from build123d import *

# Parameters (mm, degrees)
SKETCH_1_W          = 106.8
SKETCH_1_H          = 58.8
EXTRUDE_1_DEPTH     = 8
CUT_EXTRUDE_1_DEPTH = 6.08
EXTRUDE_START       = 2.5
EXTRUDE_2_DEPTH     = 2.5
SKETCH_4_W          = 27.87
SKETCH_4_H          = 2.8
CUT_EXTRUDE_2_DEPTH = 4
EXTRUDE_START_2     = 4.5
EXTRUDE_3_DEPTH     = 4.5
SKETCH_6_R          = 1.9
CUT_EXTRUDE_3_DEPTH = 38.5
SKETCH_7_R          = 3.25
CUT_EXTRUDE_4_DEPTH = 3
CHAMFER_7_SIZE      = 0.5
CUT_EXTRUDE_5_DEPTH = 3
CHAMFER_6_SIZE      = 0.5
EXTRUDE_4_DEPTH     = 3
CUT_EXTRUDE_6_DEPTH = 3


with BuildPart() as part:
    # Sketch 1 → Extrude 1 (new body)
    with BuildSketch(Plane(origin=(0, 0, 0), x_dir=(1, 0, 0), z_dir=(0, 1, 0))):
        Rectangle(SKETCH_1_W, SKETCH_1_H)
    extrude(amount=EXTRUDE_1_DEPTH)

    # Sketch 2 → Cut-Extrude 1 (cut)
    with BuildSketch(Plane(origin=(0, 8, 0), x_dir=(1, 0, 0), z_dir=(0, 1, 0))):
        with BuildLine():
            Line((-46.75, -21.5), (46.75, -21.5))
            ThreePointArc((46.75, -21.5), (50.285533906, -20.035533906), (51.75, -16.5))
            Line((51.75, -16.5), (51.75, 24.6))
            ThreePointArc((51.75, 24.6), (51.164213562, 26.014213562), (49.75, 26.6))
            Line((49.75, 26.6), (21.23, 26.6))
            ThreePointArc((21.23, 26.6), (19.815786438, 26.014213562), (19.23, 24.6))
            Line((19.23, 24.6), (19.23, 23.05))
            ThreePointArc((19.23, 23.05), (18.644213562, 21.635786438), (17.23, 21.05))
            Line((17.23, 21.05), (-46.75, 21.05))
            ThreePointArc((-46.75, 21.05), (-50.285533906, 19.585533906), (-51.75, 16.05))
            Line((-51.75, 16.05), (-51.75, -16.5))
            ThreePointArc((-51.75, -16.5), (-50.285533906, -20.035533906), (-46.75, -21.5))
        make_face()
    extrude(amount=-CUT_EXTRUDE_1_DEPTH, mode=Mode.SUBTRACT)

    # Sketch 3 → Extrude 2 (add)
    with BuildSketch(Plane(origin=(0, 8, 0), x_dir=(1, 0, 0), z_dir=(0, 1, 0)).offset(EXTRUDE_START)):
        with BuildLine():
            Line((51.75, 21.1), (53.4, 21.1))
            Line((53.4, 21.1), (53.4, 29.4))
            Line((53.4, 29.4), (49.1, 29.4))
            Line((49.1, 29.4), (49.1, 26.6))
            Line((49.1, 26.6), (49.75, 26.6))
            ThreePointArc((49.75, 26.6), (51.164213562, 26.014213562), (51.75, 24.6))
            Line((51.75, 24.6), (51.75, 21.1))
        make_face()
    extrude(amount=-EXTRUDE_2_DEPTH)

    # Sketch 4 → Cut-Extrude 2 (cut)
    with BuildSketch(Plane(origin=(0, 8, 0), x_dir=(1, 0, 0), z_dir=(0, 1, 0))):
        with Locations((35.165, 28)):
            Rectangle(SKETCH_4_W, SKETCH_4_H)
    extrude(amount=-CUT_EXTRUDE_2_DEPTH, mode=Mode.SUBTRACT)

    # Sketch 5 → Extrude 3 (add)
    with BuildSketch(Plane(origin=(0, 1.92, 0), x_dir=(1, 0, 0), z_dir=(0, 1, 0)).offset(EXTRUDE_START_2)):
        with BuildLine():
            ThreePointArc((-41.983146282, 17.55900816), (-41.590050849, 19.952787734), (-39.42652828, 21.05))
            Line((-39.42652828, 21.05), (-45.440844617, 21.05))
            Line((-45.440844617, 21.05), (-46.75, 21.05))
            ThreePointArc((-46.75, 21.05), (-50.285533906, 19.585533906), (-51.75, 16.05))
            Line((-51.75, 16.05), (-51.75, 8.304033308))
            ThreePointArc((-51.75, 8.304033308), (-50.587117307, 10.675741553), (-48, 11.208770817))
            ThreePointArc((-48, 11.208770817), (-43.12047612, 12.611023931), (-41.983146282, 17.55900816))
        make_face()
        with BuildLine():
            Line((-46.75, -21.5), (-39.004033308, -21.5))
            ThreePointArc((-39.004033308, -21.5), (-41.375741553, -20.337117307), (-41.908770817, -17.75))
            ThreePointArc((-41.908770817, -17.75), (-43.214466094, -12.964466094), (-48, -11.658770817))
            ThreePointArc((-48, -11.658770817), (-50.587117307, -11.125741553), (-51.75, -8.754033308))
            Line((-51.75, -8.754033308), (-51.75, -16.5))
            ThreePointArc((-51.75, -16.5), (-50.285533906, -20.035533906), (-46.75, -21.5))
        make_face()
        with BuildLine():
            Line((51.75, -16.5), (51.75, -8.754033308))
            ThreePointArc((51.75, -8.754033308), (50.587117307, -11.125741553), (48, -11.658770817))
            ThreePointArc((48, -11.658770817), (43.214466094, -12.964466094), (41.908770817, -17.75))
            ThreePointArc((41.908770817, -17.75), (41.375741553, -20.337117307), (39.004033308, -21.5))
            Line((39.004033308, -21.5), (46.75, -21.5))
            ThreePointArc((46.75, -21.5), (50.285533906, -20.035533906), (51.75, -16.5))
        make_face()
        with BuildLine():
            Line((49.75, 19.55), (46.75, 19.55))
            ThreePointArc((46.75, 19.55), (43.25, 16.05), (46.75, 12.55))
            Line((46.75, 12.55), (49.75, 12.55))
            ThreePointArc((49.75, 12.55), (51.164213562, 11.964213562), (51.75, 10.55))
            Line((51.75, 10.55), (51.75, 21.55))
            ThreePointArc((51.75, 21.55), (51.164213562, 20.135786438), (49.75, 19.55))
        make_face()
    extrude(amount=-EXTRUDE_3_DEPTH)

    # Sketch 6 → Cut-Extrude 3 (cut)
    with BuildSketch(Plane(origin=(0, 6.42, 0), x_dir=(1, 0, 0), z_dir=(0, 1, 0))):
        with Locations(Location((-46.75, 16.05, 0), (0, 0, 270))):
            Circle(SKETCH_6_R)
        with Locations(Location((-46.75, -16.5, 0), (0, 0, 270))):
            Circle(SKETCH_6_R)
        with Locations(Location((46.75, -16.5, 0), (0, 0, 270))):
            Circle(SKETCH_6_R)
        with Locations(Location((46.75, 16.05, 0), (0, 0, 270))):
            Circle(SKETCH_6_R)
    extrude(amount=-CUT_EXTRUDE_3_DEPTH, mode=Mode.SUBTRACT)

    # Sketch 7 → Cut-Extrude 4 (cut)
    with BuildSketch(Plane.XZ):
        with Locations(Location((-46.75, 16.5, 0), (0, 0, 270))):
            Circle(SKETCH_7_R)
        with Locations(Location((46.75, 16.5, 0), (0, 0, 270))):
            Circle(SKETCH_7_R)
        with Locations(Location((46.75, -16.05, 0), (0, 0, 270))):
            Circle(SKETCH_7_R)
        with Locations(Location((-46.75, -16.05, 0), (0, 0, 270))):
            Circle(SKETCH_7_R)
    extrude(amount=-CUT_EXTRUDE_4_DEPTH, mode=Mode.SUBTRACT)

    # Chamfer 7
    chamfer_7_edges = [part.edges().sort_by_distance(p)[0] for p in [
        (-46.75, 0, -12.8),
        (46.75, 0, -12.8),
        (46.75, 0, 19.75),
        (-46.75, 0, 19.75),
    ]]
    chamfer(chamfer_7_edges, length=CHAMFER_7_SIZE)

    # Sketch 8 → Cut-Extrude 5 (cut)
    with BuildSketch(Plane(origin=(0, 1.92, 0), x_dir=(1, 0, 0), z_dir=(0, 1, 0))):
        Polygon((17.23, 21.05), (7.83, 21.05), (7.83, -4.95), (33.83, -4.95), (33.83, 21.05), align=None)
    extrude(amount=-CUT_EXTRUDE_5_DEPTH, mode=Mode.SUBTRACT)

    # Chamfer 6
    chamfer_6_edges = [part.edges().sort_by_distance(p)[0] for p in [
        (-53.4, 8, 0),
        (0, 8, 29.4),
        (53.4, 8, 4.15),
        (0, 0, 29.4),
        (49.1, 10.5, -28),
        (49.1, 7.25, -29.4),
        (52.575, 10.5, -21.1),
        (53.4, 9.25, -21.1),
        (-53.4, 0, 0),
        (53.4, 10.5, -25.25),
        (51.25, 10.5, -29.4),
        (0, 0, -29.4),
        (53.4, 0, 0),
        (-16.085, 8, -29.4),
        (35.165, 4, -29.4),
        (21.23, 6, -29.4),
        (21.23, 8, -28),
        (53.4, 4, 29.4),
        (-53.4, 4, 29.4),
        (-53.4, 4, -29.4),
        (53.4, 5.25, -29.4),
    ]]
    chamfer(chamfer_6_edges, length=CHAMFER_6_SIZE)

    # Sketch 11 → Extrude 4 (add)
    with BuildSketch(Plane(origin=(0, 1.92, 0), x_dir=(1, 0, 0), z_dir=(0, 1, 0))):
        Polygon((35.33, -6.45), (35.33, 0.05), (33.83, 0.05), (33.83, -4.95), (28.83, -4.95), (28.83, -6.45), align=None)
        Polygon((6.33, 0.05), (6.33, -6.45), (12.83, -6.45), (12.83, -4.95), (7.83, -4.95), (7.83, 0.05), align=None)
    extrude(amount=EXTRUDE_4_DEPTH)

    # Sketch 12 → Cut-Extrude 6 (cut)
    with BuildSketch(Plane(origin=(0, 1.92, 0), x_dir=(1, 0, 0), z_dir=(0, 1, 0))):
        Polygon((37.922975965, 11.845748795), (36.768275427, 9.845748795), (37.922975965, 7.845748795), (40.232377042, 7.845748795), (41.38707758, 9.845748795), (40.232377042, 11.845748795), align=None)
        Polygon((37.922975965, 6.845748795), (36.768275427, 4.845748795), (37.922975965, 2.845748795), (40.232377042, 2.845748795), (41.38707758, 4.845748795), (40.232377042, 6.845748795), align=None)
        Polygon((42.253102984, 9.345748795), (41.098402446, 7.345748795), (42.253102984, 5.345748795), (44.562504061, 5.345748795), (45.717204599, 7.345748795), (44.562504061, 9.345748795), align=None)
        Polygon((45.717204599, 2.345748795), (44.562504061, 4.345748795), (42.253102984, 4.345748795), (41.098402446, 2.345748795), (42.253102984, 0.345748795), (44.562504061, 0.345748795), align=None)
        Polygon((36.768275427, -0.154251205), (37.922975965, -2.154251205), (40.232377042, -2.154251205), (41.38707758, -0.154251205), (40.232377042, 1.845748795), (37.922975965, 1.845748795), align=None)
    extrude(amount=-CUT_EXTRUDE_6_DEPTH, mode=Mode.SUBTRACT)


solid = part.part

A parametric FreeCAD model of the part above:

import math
import FreeCAD as App
import Part
import Sketcher
from FreeCAD import Vector
Q = App.Units.Quantity


def edges_at(feature, points):
    """Names of the edges that pass closest to the given points."""
    edges = feature.Shape.Edges
    near = lambda p: min(range(len(edges)), key=lambda i: edges[i].distToShape(Part.Vertex(*p))[0])
    return sorted({f"Edge{near(p) + 1}" for p in points})

doc = App.newDocument("Part")
body = doc.addObject("PartDesign::Body", "Body")

sketch1 = body.newObject("Sketcher::SketchObject", "Sketch")
sketch1.AttachmentSupport = (doc.getObject("XZ_Plane"), [""])
sketch1.MapMode = "FlatFace"
sketch1.addGeometry([
    Part.LineSegment(Vector(-53, -29, 0), Vector(-53, 29, 0)),
    Part.LineSegment(Vector(-53, 29, 0), Vector(53, 29, 0)),
    Part.LineSegment(Vector(53, 29, 0), Vector(53, -29, 0)),
    Part.LineSegment(Vector(53, -29, 0), Vector(-53, -29, 0)),
], False)
sketch1.addConstraint([
    Sketcher.Constraint("Coincident", 0, 2, 1, 1),
    Sketcher.Constraint("Coincident", 1, 2, 2, 1),
    Sketcher.Constraint("Coincident", 2, 2, 3, 1),
    Sketcher.Constraint("Coincident", 3, 2, 0, 1),
    Sketcher.Constraint("Vertical", 0),
    Sketcher.Constraint("Horizontal", 1),
    Sketcher.Constraint("Vertical", 2),
    Sketcher.Constraint("Horizontal", 3),
    Sketcher.Constraint("Symmetric", 0, 2, 2, 2, -1, 1),
    Sketcher.Constraint("DistanceX", 1, 1, 1, 2, Q("106.8 mm")),
    Sketcher.Constraint("DistanceY", 0, 1, 0, 2, Q("58.8 mm")),
])
pad1 = body.newObject("PartDesign::Pad", "Pad")
pad1.Profile = sketch1
pad1.Length = 8
pad1.Reversed = True

sketch2 = body.newObject("Sketcher::SketchObject", "Sketch001")
sketch2.AttachmentSupport = (doc.getObject("XZ_Plane"), [""])
sketch2.MapMode = "FlatFace"
sketch2.AttachmentOffset = App.Placement(Vector(0, 0, -8), App.Rotation())
sketch2.addGeometry([
    Part.LineSegment(Vector(-46.8, 21.5, 0), Vector(46.8, 21.5, 0)),
    Part.ArcOfCircle(Part.Circle(Vector(46.8, 16.5, 0), Vector(0, 0, 1), 5), math.radians(0), math.radians(90)),
    Part.LineSegment(Vector(51.8, 16.5, 0), Vector(51.8, -24.6, 0)),
    Part.ArcOfCircle(Part.Circle(Vector(49.7, -24.6, 0), Vector(0, 0, 1), 2), math.radians(-90), math.radians(0)),
    Part.LineSegment(Vector(49.8, -26.6, 0), Vector(21.2, -26.6, 0)),
    Part.ArcOfCircle(Part.Circle(Vector(21.2, -24.6, 0), Vector(0, 0, 1), 2), math.radians(-180), math.radians(-90)),
    Part.LineSegment(Vector(19.2, -24.6, 0), Vector(19.2, -23.1, 0)),
    Part.ArcOfCircle(Part.Circle(Vector(17.2, -23.1, 0), Vector(0, 0, 1), 2), math.radians(0), math.radians(90)),
    Part.LineSegment(Vector(17.2, -21.1, 0), Vector(-46.8, -21.1, 0)),
    Part.ArcOfCircle(Part.Circle(Vector(-46.8, -16.1, 0), Vector(0, 0, 1), 5), math.radians(180), math.radians(270)),
    Part.LineSegment(Vector(-51.8, -16.1, 0), Vector(-51.8, 16.5, 0)),
    Part.ArcOfCircle(Part.Circle(Vector(-46.8, 16.5, 0), Vector(0, 0, 1), 5), math.radians(90), math.radians(180)),
], False)
sketch2.addConstraint([
    Sketcher.Constraint("Tangent", 0, 2, 1, 2),
    Sketcher.Constraint("Tangent", 1, 1, 2, 1),
    Sketcher.Constraint("Tangent", 2, 2, 3, 2),
    Sketcher.Constraint("Tangent", 3, 1, 4, 1),
    Sketcher.Constraint("Tangent", 4, 2, 5, 2),
    Sketcher.Constraint("Tangent", 5, 1, 6, 1),
    Sketcher.Constraint("Tangent", 6, 2, 7, 1),
    Sketcher.Constraint("Tangent", 7, 2, 8, 1),
    Sketcher.Constraint("Tangent", 8, 2, 9, 2),
    Sketcher.Constraint("Tangent", 9, 1, 10, 1),
    Sketcher.Constraint("Tangent", 10, 2, 11, 2),
    Sketcher.Constraint("Tangent", 11, 1, 0, 1),
    Sketcher.Constraint("Horizontal", 0),
    Sketcher.Constraint("Vertical", 2),
    Sketcher.Constraint("Horizontal", 4),
    Sketcher.Constraint("Vertical", 6),
    Sketcher.Constraint("Horizontal", 8),
    Sketcher.Constraint("Vertical", 10),
    Sketcher.Constraint("Equal", 3, 5),
    Sketcher.Constraint("Equal", 5, 7),
    Sketcher.Constraint("Equal", 1, 9),
    Sketcher.Constraint("Equal", 9, 11),
    Sketcher.Constraint("Radius", 1, Q("5 mm")),
    Sketcher.Constraint("Radius", 3, Q("2 mm")),
    Sketcher.Constraint("DistanceX", 0, 1, 0, 2, Q("93.5 mm")),
    Sketcher.Constraint("DistanceY", 2, 2, 2, 1, Q("41.1 mm")),
    Sketcher.Constraint("DistanceX", 4, 2, 4, 1, Q("28.52 mm")),
    Sketcher.Constraint("DistanceY", 6, 1, 6, 2, Q("1.55 mm")),
    Sketcher.Constraint("DistanceY", -1, 1, 1, 3, Q("16.5 mm")),
    Sketcher.Constraint("DistanceX", -1, 1, 1, 3, Q("46.75 mm")),
])
pocket1 = body.newObject("PartDesign::Pocket", "Pocket")
pocket1.Profile = sketch2
pocket1.Length = 6.08
pocket1.Reversed = True

sketch3 = body.newObject("Sketcher::SketchObject", "Sketch002")
sketch3.AttachmentSupport = (doc.getObject("XZ_Plane"), [""])
sketch3.MapMode = "FlatFace"
sketch3.AttachmentOffset = App.Placement(Vector(0, 0, -10.5), App.Rotation())
sketch3.addGeometry([
    Part.LineSegment(Vector(51.8, -21.1, 0), Vector(53.4, -21.1, 0)),
    Part.LineSegment(Vector(53.4, -21.1, 0), Vector(53.4, -29.4, 0)),
    Part.LineSegment(Vector(53.4, -29.4, 0), Vector(49.1, -29.4, 0)),
    Part.LineSegment(Vector(49.1, -29.4, 0), Vector(49.1, -26.6, 0)),
    Part.LineSegment(Vector(49.1, -26.6, 0), Vector(49.8, -26.6, 0)),
    Part.ArcOfCircle(Part.Circle(Vector(49.7, -24.6, 0), Vector(0, 0, 1), 2), math.radians(-90), math.radians(0)),
    Part.LineSegment(Vector(51.8, -24.6, 0), Vector(51.8, -21.1, 0)),
], False)
sketch3.addConstraint([
    Sketcher.Constraint("Coincident", 0, 2, 1, 1),
    Sketcher.Constraint("Coincident", 1, 2, 2, 1),
    Sketcher.Constraint("Coincident", 2, 2, 3, 1),
    Sketcher.Constraint("Coincident", 3, 2, 4, 1),
    Sketcher.Constraint("Tangent", 4, 2, 5, 1),
    Sketcher.Constraint("Tangent", 5, 2, 6, 1),
    Sketcher.Constraint("Coincident", 6, 2, 0, 1),
    Sketcher.Constraint("Horizontal", 0),
    Sketcher.Constraint("Vertical", 1),
    Sketcher.Constraint("Horizontal", 2),
    Sketcher.Constraint("Vertical", 3),
    Sketcher.Constraint("Horizontal", 4),
    Sketcher.Constraint("Vertical", 6),
    Sketcher.Constraint("Radius", 5, Q("2 mm")),
    Sketcher.Constraint("DistanceX", 2, 2, 2, 1, Q("4.3 mm")),
    Sketcher.Constraint("DistanceY", 1, 2, 1, 1, Q("8.3 mm")),
    Sketcher.Constraint("DistanceY", 3, 1, 3, 2, Q("2.8 mm")),
    Sketcher.Constraint("DistanceX", 0, 1, 0, 2, Q("1.65 mm")),
    Sketcher.Constraint("DistanceY", 5, 3, -1, 1, Q("24.6 mm")),
    Sketcher.Constraint("DistanceX", -1, 1, 0, 2, Q("53.4 mm")),
])
pad2 = body.newObject("PartDesign::Pad", "Pad001")
pad2.Profile = sketch3
pad2.Length = 2.5

sketch4 = body.newObject("Sketcher::SketchObject", "Sketch003")
sketch4.AttachmentSupport = (doc.getObject("XZ_Plane"), [""])
sketch4.MapMode = "FlatFace"
sketch4.AttachmentOffset = App.Placement(Vector(0, 0, -8), App.Rotation())
sketch4.addGeometry([
    Part.LineSegment(Vector(21.2, -29.4, 0), Vector(21.2, -26.6, 0)),
    Part.LineSegment(Vector(21.2, -26.6, 0), Vector(49.1, -26.6, 0)),
    Part.LineSegment(Vector(49.1, -26.6, 0), Vector(49.1, -29.4, 0)),
    Part.LineSegment(Vector(49.1, -29.4, 0), Vector(21.2, -29.4, 0)),
], False)
sketch4.addConstraint([
    Sketcher.Constraint("Coincident", 0, 2, 1, 1),
    Sketcher.Constraint("Coincident", 1, 2, 2, 1),
    Sketcher.Constraint("Coincident", 2, 2, 3, 1),
    Sketcher.Constraint("Coincident", 3, 2, 0, 1),
    Sketcher.Constraint("Vertical", 0),
    Sketcher.Constraint("Horizontal", 1),
    Sketcher.Constraint("Vertical", 2),
    Sketcher.Constraint("Horizontal", 3),
    Sketcher.Constraint("DistanceY", 0, 1, 0, 2, Q("2.8 mm")),
    Sketcher.Constraint("DistanceX", 1, 1, 1, 2, Q("27.87 mm")),
    Sketcher.Constraint("DistanceY", 0, 2, -1, 1, Q("26.6 mm")),
    Sketcher.Constraint("DistanceX", -1, 1, 1, 2, Q("49.1 mm")),
])
pocket2 = body.newObject("PartDesign::Pocket", "Pocket001")
pocket2.Profile = sketch4
pocket2.Length = 4
pocket2.Reversed = True

sketch5 = body.newObject("Sketcher::SketchObject", "Sketch004")
sketch5.AttachmentSupport = (doc.getObject("XZ_Plane"), [""])
sketch5.MapMode = "FlatFace"
sketch5.AttachmentOffset = App.Placement(Vector(0, 0, -6.42), App.Rotation())
sketch5.addGeometry([
    Part.ArcOfCircle(Part.Circle(Vector(-39.4, -18.4, 0), Vector(0, 0, 1), 2.7), math.radians(162), math.radians(270)),
    Part.LineSegment(Vector(-39.4, -21.1, 0), Vector(-46.8, -21.1, 0)),
    Part.ArcOfCircle(Part.Circle(Vector(-46.8, -16.1, 0), Vector(0, 0, 1), 5), math.radians(180), math.radians(270)),
    Part.LineSegment(Vector(-51.8, -16.1, 0), Vector(-51.8, -8.3, 0)),
    Part.ArcOfCircle(Part.Circle(Vector(-48.8, -8.3, 0), Vector(0, 0, 1), 3), math.radians(180), math.radians(284)),
    Part.ArcOfCircle(Part.Circle(Vector(-46.8, -16.1, 0), Vector(0, 0, 1), 5), math.radians(-18), math.radians(104)),
    Part.LineSegment(Vector(-46.8, 21.5, 0), Vector(-39, 21.5, 0)),
    Part.ArcOfCircle(Part.Circle(Vector(-39, 18.5, 0), Vector(0, 0, 1), 3), math.radians(90), math.radians(194)),
    Part.ArcOfCircle(Part.Circle(Vector(-46.8, 16.5, 0), Vector(0, 0, 1), 5), math.radians(-104), math.radians(14)),
    Part.ArcOfCircle(Part.Circle(Vector(-48.8, 8.8, 0), Vector(0, 0, 1), 3), math.radians(76), math.radians(180)),
    Part.LineSegment(Vector(-51.8, 8.8, 0), Vector(-51.8, 16.5, 0)),
    Part.ArcOfCircle(Part.Circle(Vector(-46.8, 16.5, 0), Vector(0, 0, 1), 5), math.radians(90), math.radians(180)),
    Part.LineSegment(Vector(51.8, 16.5, 0), Vector(51.8, 8.8, 0)),
    Part.ArcOfCircle(Part.Circle(Vector(48.8, 8.8, 0), Vector(0, 0, 1), 3), math.radians(0), math.radians(104)),
    Part.ArcOfCircle(Part.Circle(Vector(46.8, 16.5, 0), Vector(0, 0, 1), 5), math.radians(166), math.radians(284)),
    Part.ArcOfCircle(Part.Circle(Vector(39, 18.5, 0), Vector(0, 0, 1), 3), math.radians(-14), math.radians(90)),
    Part.LineSegment(Vector(39, 21.5, 0), Vector(46.8, 21.5, 0)),
    Part.ArcOfCircle(Part.Circle(Vector(46.8, 16.5, 0), Vector(0, 0, 1), 5), math.radians(0), math.radians(90)),
    Part.LineSegment(Vector(49.8, -19.6, 0), Vector(46.8, -19.6, 0)),
    Part.ArcOfCircle(Part.Circle(Vector(46.8, -16.1, 0), Vector(0, 0, 1), 3.5), math.radians(90), math.radians(270)),
    Part.LineSegment(Vector(46.8, -12.6, 0), Vector(49.8, -12.6, 0)),
    Part.ArcOfCircle(Part.Circle(Vector(49.7, -10.5, 0), Vector(0, 0, 1), 2), math.radians(-90), math.radians(0)),
    Part.LineSegment(Vector(51.8, -10.6, 0), Vector(51.8, -21.6, 0)),
    Part.ArcOfCircle(Part.Circle(Vector(49.7, -21.6, 0), Vector(0, 0, 1), 2), math.radians(0), math.radians(90)),
], False)
sketch5.addConstraint([
    Sketcher.Constraint("Tangent", 0, 2, 1, 1),
    Sketcher.Constraint("Tangent", 1, 2, 2, 2),
    Sketcher.Constraint("Tangent", 2, 1, 3, 1),
    Sketcher.Constraint("Tangent", 3, 2, 4, 1),
    Sketcher.Constraint("Tangent", 4, 2, 5, 2),
    Sketcher.Constraint("Tangent", 5, 1, 0, 1),
    Sketcher.Constraint("Tangent", 6, 2, 7, 1),
    Sketcher.Constraint("Tangent", 7, 2, 8, 2),
    Sketcher.Constraint("Tangent", 8, 1, 9, 1),
    Sketcher.Constraint("Tangent", 9, 2, 10, 1),
    Sketcher.Constraint("Tangent", 10, 2, 11, 2),
    Sketcher.Constraint("Tangent", 11, 1, 6, 1),
    Sketcher.Constraint("Tangent", 12, 2, 13, 1),
    Sketcher.Constraint("Tangent", 13, 2, 14, 2),
    Sketcher.Constraint("Tangent", 14, 1, 15, 1),
    Sketcher.Constraint("Tangent", 15, 2, 16, 1),
    Sketcher.Constraint("Tangent", 16, 2, 17, 2),
    Sketcher.Constraint("Tangent", 17, 1, 12, 1),
    Sketcher.Constraint("Tangent", 18, 2, 19, 2),
    Sketcher.Constraint("Tangent", 19, 1, 20, 1),
    Sketcher.Constraint("Tangent", 20, 2, 21, 1),
    Sketcher.Constraint("Tangent", 21, 2, 22, 1),
    Sketcher.Constraint("Tangent", 22, 2, 23, 1),
    Sketcher.Constraint("Tangent", 23, 2, 18, 1),
    Sketcher.Constraint("Horizontal", 1),
    Sketcher.Constraint("Vertical", 3),
    Sketcher.Constraint("Horizontal", 6),
    Sketcher.Constraint("Vertical", 10),
    Sketcher.Constraint("Vertical", 12),
    Sketcher.Constraint("Horizontal", 16),
    Sketcher.Constraint("Horizontal", 18),
    Sketcher.Constraint("Horizontal", 20),
    Sketcher.Constraint("Vertical", 22),
    Sketcher.Constraint("Coincident", 5, 3, 2, 3),
    Sketcher.Constraint("Coincident", 11, 3, 8, 3),
    Sketcher.Constraint("Coincident", 17, 3, 14, 3),
    Sketcher.Constraint("Equal", 2, 5),
    Sketcher.Constraint("Equal", 4, 7),
    Sketcher.Constraint("Equal", 5, 8),
    Sketcher.Constraint("Equal", 7, 9),
    Sketcher.Constraint("Equal", 8, 11),
    Sketcher.Constraint("Equal", 9, 13),
    Sketcher.Constraint("Equal", 11, 14),
    Sketcher.Constraint("Equal", 13, 15),
    Sketcher.Constraint("Equal", 14, 17),
    Sketcher.Constraint("Equal", 21, 23),
    Sketcher.Constraint("Symmetric", 9, 3, 13, 3, -2),
    Sketcher.Constraint("Symmetric", 2, 3, 19, 3, -2),
    Sketcher.Constraint("Vertical", 5, 3, 8, 3),
    Sketcher.Constraint("Vertical", 17, 1, 21, 2),
    Sketcher.Constraint("Radius", 2, Q("5 mm")),
    Sketcher.Constraint("Radius", 4, Q("3 mm")),
    Sketcher.Constraint("Radius", 21, Q("2 mm")),
    Sketcher.Constraint("Radius", 19, Q("3.5 mm")),
    Sketcher.Constraint("DistanceX", 4, 2, -1, 1, Q("48 mm")),
    Sketcher.Constraint("DistanceY", -1, 1, 7, 3, Q("18.5 mm")),
    Sketcher.Constraint("DistanceY", 2, 3, -1, 1, Q("16.05 mm")),
    Sketcher.Constraint("Radius", 0, Q("2.681662 mm")),
])
pad3 = body.newObject("PartDesign::Pad", "Pad002")
pad3.Profile = sketch5
pad3.Length = 4.5

sketch6 = body.newObject("Sketcher::SketchObject", "Sketch005")
sketch6.AttachmentSupport = (doc.getObject("XZ_Plane"), [""])
sketch6.MapMode = "FlatFace"
sketch6.AttachmentOffset = App.Placement(Vector(0, 0, -6.42), App.Rotation())
sketch6.addGeometry([
    Part.Circle(Vector(-46.8, -16.1, 0), Vector(0, 0, 1), 1.9),
    Part.Circle(Vector(-46.8, 16.5, 0), Vector(0, 0, 1), 1.9),
    Part.Circle(Vector(46.8, 16.5, 0), Vector(0, 0, 1), 1.9),
    Part.Circle(Vector(46.8, -16.1, 0), Vector(0, 0, 1), 1.9),
], False)
sketch6.addConstraint([
    Sketcher.Constraint("Equal", 0, 1),
    Sketcher.Constraint("Equal", 1, 2),
    Sketcher.Constraint("Equal", 2, 3),
    Sketcher.Constraint("Symmetric", 1, 3, 2, 3, -2),
    Sketcher.Constraint("Symmetric", 0, 3, 3, 3, -2),
    Sketcher.Constraint("Vertical", 0, 3, 1, 3),
    Sketcher.Constraint("Diameter", 0, Q("3.8 mm")),
    Sketcher.Constraint("DistanceY", -1, 1, 1, 3, Q("16.5 mm")),
    Sketcher.Constraint("DistanceX", 1, 3, 2, 3, Q("93.5 mm")),
    Sketcher.Constraint("DistanceY", 0, 3, -1, 1, Q("16.05 mm")),
])
pocket3 = body.newObject("PartDesign::Pocket", "Pocket002")
pocket3.Profile = sketch6
pocket3.Length = 38.5
pocket3.Reversed = True

sketch7 = body.newObject("Sketcher::SketchObject", "Sketch006")
sketch7.AttachmentSupport = (doc.getObject("XZ_Plane"), [""])
sketch7.MapMode = "FlatFace"
sketch7.addGeometry([
    Part.Circle(Vector(-46.8, 16.5, 0), Vector(0, 0, 1), 3.2),
    Part.Circle(Vector(46.8, 16.5, 0), Vector(0, 0, 1), 3.2),
    Part.Circle(Vector(46.8, -16.1, 0), Vector(0, 0, 1), 3.2),
    Part.Circle(Vector(-46.8, -16.1, 0), Vector(0, 0, 1), 3.2),
], False)
sketch7.addConstraint([
    Sketcher.Constraint("Equal", 0, 1),
    Sketcher.Constraint("Equal", 1, 2),
    Sketcher.Constraint("Equal", 2, 3),
    Sketcher.Constraint("Symmetric", 0, 3, 1, 3, -2),
    Sketcher.Constraint("Symmetric", 2, 3, 3, 3, -2),
    Sketcher.Constraint("Vertical", 1, 3, 2, 3),
    Sketcher.Constraint("Diameter", 0, Q("6.5 mm")),
    Sketcher.Constraint("DistanceY", -1, 1, 0, 3, Q("16.5 mm")),
    Sketcher.Constraint("DistanceX", 0, 3, 1, 3, Q("93.5 mm")),
    Sketcher.Constraint("DistanceY", 2, 3, -1, 1, Q("16.05 mm")),
])
pocket4 = body.newObject("PartDesign::Pocket", "Pocket003")
pocket4.Profile = sketch7
pocket4.Length = 3
doc.recompute()

chamfer = body.newObject("PartDesign::Chamfer", "Chamfer")
chamfer.Base = (pocket4, edges_at(pocket4, [
    (-46.75, 0, -12.8),
    (46.75, 0, -12.8),
    (46.75, 0, 19.75),
    (-46.75, 0, 19.75),
]))
chamfer.Size = 0.5

sketch8 = body.newObject("Sketcher::SketchObject", "Sketch007")
sketch8.AttachmentSupport = (doc.getObject("XZ_Plane"), [""])
sketch8.MapMode = "FlatFace"
sketch8.AttachmentOffset = App.Placement(Vector(0, 0, -1.92), App.Rotation())
sketch8.addGeometry([
    Part.LineSegment(Vector(8, -21, 0), Vector(8, 5, 0)),
    Part.LineSegment(Vector(8, 5, 0), Vector(34, 5, 0)),
    Part.LineSegment(Vector(34, 5, 0), Vector(34, -21, 0)),
    Part.LineSegment(Vector(34, -21, 0), Vector(8, -21, 0)),
], False)
sketch8.addConstraint([
    Sketcher.Constraint("Coincident", 0, 2, 1, 1),
    Sketcher.Constraint("Coincident", 1, 2, 2, 1),
    Sketcher.Constraint("Coincident", 2, 2, 3, 1),
    Sketcher.Constraint("Coincident", 3, 2, 0, 1),
    Sketcher.Constraint("Vertical", 0),
    Sketcher.Constraint("Horizontal", 1),
    Sketcher.Constraint("Vertical", 2),
    Sketcher.Constraint("Horizontal", 3),
    Sketcher.Constraint("Equal", 3, 0),
    Sketcher.Constraint("DistanceX", 1, 1, 1, 2, Q("26 mm")),
    Sketcher.Constraint("DistanceX", -1, 1, 0, 2, Q("7.83 mm")),
    Sketcher.Constraint("DistanceY", -1, 1, 0, 2, Q("4.95 mm")),
])
pocket5 = body.newObject("PartDesign::Pocket", "Pocket004")
pocket5.Profile = sketch8
pocket5.Length = 3
pocket5.Reversed = True
doc.recompute()

chamfer2 = body.newObject("PartDesign::Chamfer", "Chamfer001")
chamfer2.Base = (pocket5, edges_at(pocket5, [
    (-53.4, 8, 0),
    (0, 8, 29.4),
    (53.4, 8, 4.15),
    (0, 0, 29.4),
    (49.1, 10.5, -28),
    (49.1, 7.25, -29.4),
    (52.575, 10.5, -21.1),
    (53.4, 9.25, -21.1),
    (-53.4, 0, 0),
    (53.4, 10.5, -25.25),
    (51.25, 10.5, -29.4),
    (0, 0, -29.4),
    (53.4, 0, 0),
    (-16.085, 8, -29.4),
    (35.165, 4, -29.4),
    (21.23, 6, -29.4),
    (21.23, 8, -28),
    (53.4, 4, 29.4),
    (-53.4, 4, 29.4),
    (-53.4, 4, -29.4),
    (53.4, 5.25, -29.4),
]))
chamfer2.Size = 0.5

sketch9 = body.newObject("Sketcher::SketchObject", "Sketch008")
sketch9.AttachmentSupport = (doc.getObject("XZ_Plane"), [""])
sketch9.MapMode = "FlatFace"
sketch9.AttachmentOffset = App.Placement(Vector(0, 0, -1.92), App.Rotation())
sketch9.addGeometry([
    Part.LineSegment(Vector(35.3, 6.5, 0), Vector(35.3, -0.1, 0)),
    Part.LineSegment(Vector(35.3, -0.1, 0), Vector(33.8, -0.1, 0)),
    Part.LineSegment(Vector(33.8, -0.1, 0), Vector(33.8, 5, 0)),
    Part.LineSegment(Vector(33.8, 5, 0), Vector(28.8, 5, 0)),
    Part.LineSegment(Vector(28.8, 5, 0), Vector(28.8, 6.5, 0)),
    Part.LineSegment(Vector(28.8, 6.5, 0), Vector(35.3, 6.5, 0)),
    Part.LineSegment(Vector(6.3, -0.1, 0), Vector(6.3, 6.5, 0)),
    Part.LineSegment(Vector(6.3, 6.5, 0), Vector(12.8, 6.5, 0)),
    Part.LineSegment(Vector(12.8, 6.5, 0), Vector(12.8, 5, 0)),
    Part.LineSegment(Vector(12.8, 5, 0), Vector(7.8, 5, 0)),
    Part.LineSegment(Vector(7.8, 5, 0), Vector(7.8, -0.1, 0)),
    Part.LineSegment(Vector(7.8, -0.1, 0), Vector(6.3, -0.1, 0)),
], False)
sketch9.addConstraint([
    Sketcher.Constraint("Coincident", 0, 2, 1, 1),
    Sketcher.Constraint("Coincident", 1, 2, 2, 1),
    Sketcher.Constraint("Coincident", 2, 2, 3, 1),
    Sketcher.Constraint("Coincident", 3, 2, 4, 1),
    Sketcher.Constraint("Coincident", 4, 2, 5, 1),
    Sketcher.Constraint("Coincident", 5, 2, 0, 1),
    Sketcher.Constraint("Coincident", 6, 2, 7, 1),
    Sketcher.Constraint("Coincident", 7, 2, 8, 1),
    Sketcher.Constraint("Coincident", 8, 2, 9, 1),
    Sketcher.Constraint("Coincident", 9, 2, 10, 1),
    Sketcher.Constraint("Coincident", 10, 2, 11, 1),
    Sketcher.Constraint("Coincident", 11, 2, 6, 1),
    Sketcher.Constraint("Vertical", 0),
    Sketcher.Constraint("Horizontal", 1),
    Sketcher.Constraint("Vertical", 2),
    Sketcher.Constraint("Horizontal", 3),
    Sketcher.Constraint("Vertical", 4),
    Sketcher.Constraint("Horizontal", 5),
    Sketcher.Constraint("Vertical", 6),
    Sketcher.Constraint("Horizontal", 7),
    Sketcher.Constraint("Vertical", 8),
    Sketcher.Constraint("Horizontal", 9),
    Sketcher.Constraint("Vertical", 10),
    Sketcher.Constraint("Horizontal", 11),
    Sketcher.Constraint("Horizontal", 5, 2, 6, 2),
    Sketcher.Constraint("Horizontal", 3, 2, 8, 2),
    Sketcher.Constraint("Horizontal", 1, 2, 10, 2),
    Sketcher.Constraint("Equal", 5, 7),
    Sketcher.Constraint("Equal", 3, 9),
    Sketcher.Constraint("Equal", 7, 0),
    Sketcher.Constraint("Equal", 9, 2),
    Sketcher.Constraint("DistanceX", 3, 2, 3, 1, Q("5 mm")),
    Sketcher.Constraint("DistanceX", 1, 2, 1, 1, Q("1.5 mm")),
    Sketcher.Constraint("DistanceX", 6, 2, 5, 2, Q("29 mm")),
    Sketcher.Constraint("DistanceX", -1, 1, 0, 2, Q("35.33 mm")),
    Sketcher.Constraint("DistanceY", 0, 2, -1, 1, Q("0.05 mm")),
])
pad4 = body.newObject("PartDesign::Pad", "Pad003")
pad4.Profile = sketch9
pad4.Length = 3
pad4.Reversed = True

sketch10 = body.newObject("Sketcher::SketchObject", "Sketch009")
sketch10.AttachmentSupport = (doc.getObject("XZ_Plane"), [""])
sketch10.MapMode = "FlatFace"
sketch10.AttachmentOffset = App.Placement(Vector(0, 0, -1.92), App.Rotation())
sketch10.addGeometry([
    Part.LineSegment(Vector(37.9, -11.8, 0), Vector(36.8, -9.8, 0)),
    Part.LineSegment(Vector(36.8, -9.8, 0), Vector(37.9, -7.8, 0)),
    Part.LineSegment(Vector(37.9, -7.8, 0), Vector(40.2, -7.8, 0)),
    Part.LineSegment(Vector(40.2, -7.8, 0), Vector(41.4, -9.8, 0)),
    Part.LineSegment(Vector(41.4, -9.8, 0), Vector(40.2, -11.8, 0)),
    Part.LineSegment(Vector(40.2, -11.8, 0), Vector(37.9, -11.8, 0)),
    Part.LineSegment(Vector(37.9, -6.8, 0), Vector(36.8, -4.8, 0)),
    Part.LineSegment(Vector(36.8, -4.8, 0), Vector(37.9, -2.8, 0)),
    Part.LineSegment(Vector(37.9, -2.8, 0), Vector(40.2, -2.8, 0)),
    Part.LineSegment(Vector(40.2, -2.8, 0), Vector(41.4, -4.8, 0)),
    Part.LineSegment(Vector(41.4, -4.8, 0), Vector(40.2, -6.8, 0)),
    Part.LineSegment(Vector(40.2, -6.8, 0), Vector(37.9, -6.8, 0)),
    Part.LineSegment(Vector(42.3, -9.3, 0), Vector(41.1, -7.3, 0)),
    Part.LineSegment(Vector(41.1, -7.3, 0), Vector(42.3, -5.3, 0)),
    Part.LineSegment(Vector(42.3, -5.3, 0), Vector(44.6, -5.3, 0)),
    Part.LineSegment(Vector(44.6, -5.3, 0), Vector(45.7, -7.3, 0)),
    Part.LineSegment(Vector(45.7, -7.3, 0), Vector(44.6, -9.3, 0)),
    Part.LineSegment(Vector(44.6, -9.3, 0), Vector(42.3, -9.3, 0)),
    Part.LineSegment(Vector(45.7, -2.3, 0), Vector(44.6, -4.3, 0)),
    Part.LineSegment(Vector(44.6, -4.3, 0), Vector(42.3, -4.3, 0)),
    Part.LineSegment(Vector(42.3, -4.3, 0), Vector(41.1, -2.3, 0)),
    Part.LineSegment(Vector(41.1, -2.3, 0), Vector(42.3, -0.3, 0)),
    Part.LineSegment(Vector(42.3, -0.3, 0), Vector(44.6, -0.3, 0)),
    Part.LineSegment(Vector(44.6, -0.3, 0), Vector(45.7, -2.3, 0)),
    Part.LineSegment(Vector(36.8, 0.2, 0), Vector(37.9, 2.2, 0)),
    Part.LineSegment(Vector(37.9, 2.2, 0), Vector(40.2, 2.2, 0)),
    Part.LineSegment(Vector(40.2, 2.2, 0), Vector(41.4, 0.2, 0)),
    Part.LineSegment(Vector(41.4, 0.2, 0), Vector(40.2, -1.8, 0)),
    Part.LineSegment(Vector(40.2, -1.8, 0), Vector(37.9, -1.8, 0)),
    Part.LineSegment(Vector(37.9, -1.8, 0), Vector(36.8, 0.2, 0)),
], False)
sketch10.addConstraint([
    Sketcher.Constraint("Coincident", 0, 2, 1, 1),
    Sketcher.Constraint("Coincident", 1, 2, 2, 1),
    Sketcher.Constraint("Coincident", 2, 2, 3, 1),
    Sketcher.Constraint("Coincident", 3, 2, 4, 1),
    Sketcher.Constraint("Coincident", 4, 2, 5, 1),
    Sketcher.Constraint("Coincident", 5, 2, 0, 1),
    Sketcher.Constraint("Coincident", 6, 2, 7, 1),
    Sketcher.Constraint("Coincident", 7, 2, 8, 1),
    Sketcher.Constraint("Coincident", 8, 2, 9, 1),
    Sketcher.Constraint("Coincident", 9, 2, 10, 1),
    Sketcher.Constraint("Coincident", 10, 2, 11, 1),
    Sketcher.Constraint("Coincident", 11, 2, 6, 1),
    Sketcher.Constraint("Coincident", 12, 2, 13, 1),
    Sketcher.Constraint("Coincident", 13, 2, 14, 1),
    Sketcher.Constraint("Coincident", 14, 2, 15, 1),
    Sketcher.Constraint("Coincident", 15, 2, 16, 1),
    Sketcher.Constraint("Coincident", 16, 2, 17, 1),
    Sketcher.Constraint("Coincident", 17, 2, 12, 1),
    Sketcher.Constraint("Coincident", 18, 2, 19, 1),
    Sketcher.Constraint("Coincident", 19, 2, 20, 1),
    Sketcher.Constraint("Coincident", 20, 2, 21, 1),
    Sketcher.Constraint("Coincident", 21, 2, 22, 1),
    Sketcher.Constraint("Coincident", 22, 2, 23, 1),
    Sketcher.Constraint("Coincident", 23, 2, 18, 1),
    Sketcher.Constraint("Coincident", 24, 2, 25, 1),
    Sketcher.Constraint("Coincident", 25, 2, 26, 1),
    Sketcher.Constraint("Coincident", 26, 2, 27, 1),
    Sketcher.Constraint("Coincident", 27, 2, 28, 1),
    Sketcher.Constraint("Coincident", 28, 2, 29, 1),
    Sketcher.Constraint("Coincident", 29, 2, 24, 1),
    Sketcher.Constraint("Horizontal", 2),
    Sketcher.Constraint("Horizontal", 5),
    Sketcher.Constraint("Horizontal", 8),
    Sketcher.Constraint("Horizontal", 11),
    Sketcher.Constraint("Horizontal", 14),
    Sketcher.Constraint("Horizontal", 17),
    Sketcher.Constraint("Horizontal", 19),
    Sketcher.Constraint("Horizontal", 22),
    Sketcher.Constraint("Horizontal", 25),
    Sketcher.Constraint("Horizontal", 28),
    Sketcher.Constraint("Parallel", 0, 3),
    Sketcher.Constraint("Parallel", 1, 4),
    Sketcher.Constraint("Parallel", 3, 6),
    Sketcher.Constraint("Parallel", 4, 7),
    Sketcher.Constraint("Parallel", 6, 9),
    Sketcher.Constraint("Parallel", 7, 10),
    Sketcher.Constraint("Parallel", 9, 12),
    Sketcher.Constraint("Parallel", 10, 13),
    Sketcher.Constraint("Parallel", 12, 15),
    Sketcher.Constraint("Parallel", 13, 16),
    Sketcher.Constraint("Parallel", 16, 18),
    Sketcher.Constraint("Parallel", 15, 20),
    Sketcher.Constraint("Parallel", 18, 21),
    Sketcher.Constraint("Parallel", 20, 23),
    Sketcher.Constraint("Parallel", 21, 24),
    Sketcher.Constraint("Parallel", 23, 26),
    Sketcher.Constraint("Parallel", 24, 27),
    Sketcher.Constraint("Parallel", 26, 29),
    Sketcher.Constraint("Horizontal", 0, 2, 3, 2),
    Sketcher.Constraint("Horizontal", 6, 2, 9, 2),
    Sketcher.Constraint("Horizontal", 12, 2, 15, 2),
    Sketcher.Constraint("Horizontal", 20, 2, 23, 2),
    Sketcher.Constraint("Horizontal", 26, 2, 29, 2),
    Sketcher.Constraint("Vertical", 2, 2, 4, 2),
    Sketcher.Constraint("Vertical", 1, 2, 5, 2),
    Sketcher.Constraint("Vertical", 0, 2, 6, 2),
    Sketcher.Constraint("Vertical", 5, 2, 7, 2),
    Sketcher.Constraint("Vertical", 4, 2, 8, 2),
    Sketcher.Constraint("Vertical", 8, 2, 10, 2),
    Sketcher.Constraint("Vertical", 14, 2, 16, 2),
    Sketcher.Constraint("Vertical", 16, 2, 18, 2),
    Sketcher.Constraint("Vertical", 17, 2, 19, 2),
    Sketcher.Constraint("Vertical", 12, 2, 20, 2),
    Sketcher.Constraint("Vertical", 19, 2, 21, 2),
    Sketcher.Constraint("Vertical", 11, 2, 24, 2),
    Sketcher.Constraint("Vertical", 10, 2, 25, 2),
    Sketcher.Constraint("Vertical", 9, 2, 26, 2),
    Sketcher.Constraint("Vertical", 25, 2, 27, 2),
    Sketcher.Constraint("Equal", 11, 14),
    Sketcher.Constraint("Equal", 10, 12),
    Sketcher.Constraint("Angle", 0, Q("120 deg")),
    Sketcher.Constraint("DistanceY", 0, 2, 1, 2, Q("2 mm")),
    Sketcher.Constraint("DistanceY", 1, 2, 6, 2, Q("3 mm")),
    Sketcher.Constraint("DistanceY", 14, 2, 18, 2, Q("1 mm")),
    Sketcher.Constraint("DistanceY", 7, 2, 24, 2, Q("5 mm")),
    Sketcher.Constraint("DistanceY", 2, 2, 12, 2, Q("0.5 mm")),
    Sketcher.Constraint("DistanceX", 2, 1, 2, 2, Q("2.309401 mm")),
    Sketcher.Constraint("DistanceY", 0, 2, -1, 1, Q("9.845749 mm")),
    Sketcher.Constraint("DistanceX", -1, 1, 0, 2, Q("36.768275 mm")),
    Sketcher.Constraint("DistanceX", -1, 1, 12, 2, Q("41.098402 mm")),
])
pocket6 = body.newObject("PartDesign::Pocket", "Pocket005")
pocket6.Profile = sketch10
pocket6.Length = 3
pocket6.Reversed = True

doc.recompute()
